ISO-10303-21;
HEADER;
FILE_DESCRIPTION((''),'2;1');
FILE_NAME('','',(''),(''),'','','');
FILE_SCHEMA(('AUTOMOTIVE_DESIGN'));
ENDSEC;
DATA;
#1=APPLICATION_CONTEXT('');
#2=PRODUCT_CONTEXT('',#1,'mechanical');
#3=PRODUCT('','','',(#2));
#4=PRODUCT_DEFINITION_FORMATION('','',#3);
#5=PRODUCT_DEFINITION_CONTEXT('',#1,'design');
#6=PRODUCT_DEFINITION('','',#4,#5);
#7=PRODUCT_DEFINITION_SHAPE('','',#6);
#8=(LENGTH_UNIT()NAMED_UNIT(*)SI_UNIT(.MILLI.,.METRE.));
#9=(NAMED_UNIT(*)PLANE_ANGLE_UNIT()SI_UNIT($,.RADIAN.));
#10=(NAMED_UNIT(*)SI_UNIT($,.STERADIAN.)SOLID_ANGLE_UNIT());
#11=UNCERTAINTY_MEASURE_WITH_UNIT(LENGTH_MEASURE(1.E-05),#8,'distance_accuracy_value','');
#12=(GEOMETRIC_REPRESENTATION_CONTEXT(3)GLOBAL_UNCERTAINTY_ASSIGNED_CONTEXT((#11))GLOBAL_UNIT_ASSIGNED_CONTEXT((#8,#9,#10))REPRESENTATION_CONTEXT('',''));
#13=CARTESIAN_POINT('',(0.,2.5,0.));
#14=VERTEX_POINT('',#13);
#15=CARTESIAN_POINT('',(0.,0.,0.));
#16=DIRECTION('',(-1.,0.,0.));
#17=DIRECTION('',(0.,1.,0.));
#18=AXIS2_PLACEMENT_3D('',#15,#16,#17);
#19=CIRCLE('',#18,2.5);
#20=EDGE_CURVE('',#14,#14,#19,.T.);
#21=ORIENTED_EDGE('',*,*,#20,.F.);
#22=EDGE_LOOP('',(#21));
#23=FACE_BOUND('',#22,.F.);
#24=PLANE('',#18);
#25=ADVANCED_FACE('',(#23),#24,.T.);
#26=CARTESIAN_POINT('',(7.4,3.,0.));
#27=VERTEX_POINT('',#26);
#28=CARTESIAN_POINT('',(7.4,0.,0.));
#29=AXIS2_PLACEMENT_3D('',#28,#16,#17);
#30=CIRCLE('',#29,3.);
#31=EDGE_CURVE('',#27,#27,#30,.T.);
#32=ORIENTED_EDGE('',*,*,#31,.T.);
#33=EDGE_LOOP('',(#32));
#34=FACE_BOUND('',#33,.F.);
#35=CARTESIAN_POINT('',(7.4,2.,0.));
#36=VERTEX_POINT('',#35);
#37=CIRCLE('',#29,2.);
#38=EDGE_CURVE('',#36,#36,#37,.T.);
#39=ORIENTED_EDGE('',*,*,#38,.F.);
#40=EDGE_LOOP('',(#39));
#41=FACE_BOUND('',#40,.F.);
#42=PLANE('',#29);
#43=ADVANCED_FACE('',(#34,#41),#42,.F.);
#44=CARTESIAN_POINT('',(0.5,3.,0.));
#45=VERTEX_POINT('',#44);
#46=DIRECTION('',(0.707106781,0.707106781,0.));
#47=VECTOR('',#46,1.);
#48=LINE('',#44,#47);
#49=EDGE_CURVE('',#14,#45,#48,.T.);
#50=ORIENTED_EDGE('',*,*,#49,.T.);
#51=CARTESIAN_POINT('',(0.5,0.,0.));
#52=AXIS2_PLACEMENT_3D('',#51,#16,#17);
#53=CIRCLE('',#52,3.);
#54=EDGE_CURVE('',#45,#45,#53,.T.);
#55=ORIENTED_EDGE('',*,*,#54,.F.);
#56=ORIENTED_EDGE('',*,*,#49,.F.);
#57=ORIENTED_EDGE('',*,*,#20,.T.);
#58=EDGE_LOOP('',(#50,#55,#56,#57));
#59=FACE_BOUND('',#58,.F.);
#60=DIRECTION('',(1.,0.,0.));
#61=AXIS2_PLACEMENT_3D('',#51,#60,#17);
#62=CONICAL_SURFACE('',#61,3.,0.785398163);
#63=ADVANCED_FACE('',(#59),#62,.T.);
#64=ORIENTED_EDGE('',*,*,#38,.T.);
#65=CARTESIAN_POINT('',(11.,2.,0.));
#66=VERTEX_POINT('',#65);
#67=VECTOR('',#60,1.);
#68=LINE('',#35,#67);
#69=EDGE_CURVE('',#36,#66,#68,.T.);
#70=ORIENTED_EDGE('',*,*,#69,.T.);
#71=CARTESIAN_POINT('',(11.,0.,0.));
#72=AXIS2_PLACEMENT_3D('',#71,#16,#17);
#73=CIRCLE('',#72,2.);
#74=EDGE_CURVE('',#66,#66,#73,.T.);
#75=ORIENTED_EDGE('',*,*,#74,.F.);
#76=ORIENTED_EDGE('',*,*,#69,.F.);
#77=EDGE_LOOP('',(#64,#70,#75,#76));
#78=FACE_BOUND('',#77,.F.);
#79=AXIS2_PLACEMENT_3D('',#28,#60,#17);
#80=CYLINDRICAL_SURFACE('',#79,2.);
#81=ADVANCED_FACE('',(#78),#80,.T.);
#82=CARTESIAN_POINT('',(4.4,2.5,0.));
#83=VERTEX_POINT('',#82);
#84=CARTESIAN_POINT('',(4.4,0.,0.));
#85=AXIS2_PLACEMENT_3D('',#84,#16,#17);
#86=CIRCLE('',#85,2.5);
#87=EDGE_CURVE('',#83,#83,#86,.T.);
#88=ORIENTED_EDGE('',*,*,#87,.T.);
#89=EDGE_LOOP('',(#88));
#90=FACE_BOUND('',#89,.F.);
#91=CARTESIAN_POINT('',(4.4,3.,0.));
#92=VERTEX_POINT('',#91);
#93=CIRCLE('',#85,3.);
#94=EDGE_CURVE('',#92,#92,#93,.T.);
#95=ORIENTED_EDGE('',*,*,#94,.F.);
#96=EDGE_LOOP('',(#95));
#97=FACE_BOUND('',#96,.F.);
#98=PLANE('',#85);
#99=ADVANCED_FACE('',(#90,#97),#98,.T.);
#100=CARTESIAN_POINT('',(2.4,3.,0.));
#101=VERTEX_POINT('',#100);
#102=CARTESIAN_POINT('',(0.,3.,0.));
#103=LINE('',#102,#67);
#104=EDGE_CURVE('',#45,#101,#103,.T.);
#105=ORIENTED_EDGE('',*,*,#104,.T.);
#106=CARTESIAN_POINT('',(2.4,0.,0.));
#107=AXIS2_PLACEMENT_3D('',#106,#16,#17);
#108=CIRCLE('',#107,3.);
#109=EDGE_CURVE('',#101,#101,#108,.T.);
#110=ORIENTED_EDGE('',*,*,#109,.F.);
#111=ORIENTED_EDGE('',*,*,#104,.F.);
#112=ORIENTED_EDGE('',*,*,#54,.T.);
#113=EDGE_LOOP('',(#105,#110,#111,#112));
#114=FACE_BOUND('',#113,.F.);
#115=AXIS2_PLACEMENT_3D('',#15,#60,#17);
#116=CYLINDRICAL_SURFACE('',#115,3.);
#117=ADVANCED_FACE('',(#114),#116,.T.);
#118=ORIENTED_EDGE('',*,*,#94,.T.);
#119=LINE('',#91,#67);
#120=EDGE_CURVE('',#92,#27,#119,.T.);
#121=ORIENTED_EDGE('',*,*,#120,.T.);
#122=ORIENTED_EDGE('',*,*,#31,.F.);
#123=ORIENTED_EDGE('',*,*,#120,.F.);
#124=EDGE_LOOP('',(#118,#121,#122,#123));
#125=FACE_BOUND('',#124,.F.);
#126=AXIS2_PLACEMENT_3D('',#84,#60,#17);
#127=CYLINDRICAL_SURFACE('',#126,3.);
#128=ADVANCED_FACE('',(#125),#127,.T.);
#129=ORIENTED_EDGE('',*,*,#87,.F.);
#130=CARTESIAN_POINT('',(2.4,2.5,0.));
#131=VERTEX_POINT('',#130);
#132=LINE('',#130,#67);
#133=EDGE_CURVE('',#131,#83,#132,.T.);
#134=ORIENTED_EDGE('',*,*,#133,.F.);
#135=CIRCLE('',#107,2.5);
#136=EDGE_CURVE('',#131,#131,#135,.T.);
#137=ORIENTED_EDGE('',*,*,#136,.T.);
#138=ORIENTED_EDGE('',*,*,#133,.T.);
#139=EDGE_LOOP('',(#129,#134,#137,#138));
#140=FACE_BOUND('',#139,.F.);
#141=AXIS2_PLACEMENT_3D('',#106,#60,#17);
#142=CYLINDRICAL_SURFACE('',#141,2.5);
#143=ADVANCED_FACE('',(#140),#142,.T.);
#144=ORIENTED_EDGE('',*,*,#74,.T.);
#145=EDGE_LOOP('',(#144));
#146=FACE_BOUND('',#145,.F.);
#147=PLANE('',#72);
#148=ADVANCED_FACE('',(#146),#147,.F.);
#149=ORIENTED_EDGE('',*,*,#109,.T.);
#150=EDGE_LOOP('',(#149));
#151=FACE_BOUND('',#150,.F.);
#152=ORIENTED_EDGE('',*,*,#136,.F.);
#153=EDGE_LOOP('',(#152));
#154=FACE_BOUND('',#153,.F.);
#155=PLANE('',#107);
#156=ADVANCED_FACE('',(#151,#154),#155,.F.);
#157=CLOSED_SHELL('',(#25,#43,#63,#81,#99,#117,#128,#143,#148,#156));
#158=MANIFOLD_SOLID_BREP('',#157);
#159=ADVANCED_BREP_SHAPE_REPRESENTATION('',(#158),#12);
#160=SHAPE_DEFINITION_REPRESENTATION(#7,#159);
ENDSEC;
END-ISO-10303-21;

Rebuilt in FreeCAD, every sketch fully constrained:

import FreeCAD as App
import Part
import Sketcher


def edges_at(feature, points):
    """Names of the edges that pass closest to the given points."""
    edges = feature.Shape.Edges
    near = lambda p: min(range(len(edges)), key=lambda i: edges[i].distToShape(Part.Vertex(*p))[0])
    return sorted({f"Edge{near(p) + 1}" for p in points})


def add_polygon(sketch, points):
    """Adds a closed chain of lines whose ends are joined by coincident constraints."""
    first, n = sketch.GeometryCount, len(points)
    for a, b in zip(points, points[1:] + points[:1]):
        sketch.addGeometry(Part.LineSegment(App.Vector(*a, 0), App.Vector(*b, 0)), False)
    for i in range(n):
        sketch.addConstraint(Sketcher.Constraint("Coincident", first + i, 2, first + (i + 1) % n, 1))

doc = App.newDocument("Part")
body = doc.addObject("PartDesign::Body", "Body")

# Sketch on XY plane
sketch1 = body.newObject("Sketcher::SketchObject", "Sketch")
sketch1.AttachmentSupport = (doc.getObject("XY_Plane"), [""])
sketch1.MapMode = "FlatFace"
add_polygon(sketch1, [(0, 3), (0, 0), (11, 0), (11, 2), (7.4, 2), (7.4, 3), (4.4, 3), (4.4, 2.5), (2.4, 2.5), (2.4, 3)])  # lines 0-9
sketch1.addConstraint([
    Sketcher.Constraint("Vertical", 0),
    Sketcher.Constraint("Horizontal", 1),
    Sketcher.Constraint("Vertical", 2),
    Sketcher.Constraint("Horizontal", 3),
    Sketcher.Constraint("Vertical", 4),
    Sketcher.Constraint("Horizontal", 5),
    Sketcher.Constraint("Vertical", 6),
    Sketcher.Constraint("Horizontal", 7),
    Sketcher.Constraint("Vertical", 8),
    Sketcher.Constraint("Horizontal", 9),
    Sketcher.Constraint("Coincident", 0, 2, -1, 1),
    Sketcher.Constraint("Horizontal", 5, 2, 8, 2),
    Sketcher.Constraint("Equal", 5, 0),
    Sketcher.Constraint("Equal", 7, 2),
    Sketcher.Constraint("DistanceX", 1, 1, 1, 2, 11.0),
    Sketcher.Constraint("DistanceX", 5, 2, 5, 1, 3.0),
    Sketcher.Constraint("DistanceX", 7, 2, 7, 1, 2.0),
    Sketcher.Constraint("DistanceX", 3, 2, 3, 1, 3.6),
    Sketcher.Constraint("DistanceY", 6, 2, 6, 1, 0.5),
])
revolution = body.newObject("PartDesign::Revolution", "Revolution")
revolution.Profile = sketch1
revolution.ReferenceAxis = (sketch1, ["H_Axis"])
revolution.Angle = 360
doc.recompute()

chamfer = body.newObject("PartDesign::Chamfer", "Chamfer")
chamfer.Base = (revolution, edges_at(revolution, [(0, -3, 0)]))
chamfer.Size = 0.5

doc.recompute()
